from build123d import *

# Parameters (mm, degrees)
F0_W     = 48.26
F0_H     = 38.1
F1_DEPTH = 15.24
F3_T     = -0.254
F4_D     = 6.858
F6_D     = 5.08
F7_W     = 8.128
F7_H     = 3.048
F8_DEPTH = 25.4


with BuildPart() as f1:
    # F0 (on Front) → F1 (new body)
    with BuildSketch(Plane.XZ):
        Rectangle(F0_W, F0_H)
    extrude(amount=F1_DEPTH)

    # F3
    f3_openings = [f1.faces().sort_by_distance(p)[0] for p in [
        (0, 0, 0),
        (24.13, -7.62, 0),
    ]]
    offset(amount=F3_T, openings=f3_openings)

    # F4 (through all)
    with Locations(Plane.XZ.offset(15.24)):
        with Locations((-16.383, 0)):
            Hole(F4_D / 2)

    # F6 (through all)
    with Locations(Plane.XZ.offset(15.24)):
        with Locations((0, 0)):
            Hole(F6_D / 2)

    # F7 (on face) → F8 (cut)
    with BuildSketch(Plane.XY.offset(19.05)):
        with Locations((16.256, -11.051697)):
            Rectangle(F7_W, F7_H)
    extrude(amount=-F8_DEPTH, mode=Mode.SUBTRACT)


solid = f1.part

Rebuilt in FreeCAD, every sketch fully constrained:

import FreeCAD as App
import Part
import Sketcher

V = App.Vector
Q = App.Units.Quantity


def faces_at(feature, points):
    """Names of the faces that lie closest to the given points."""
    faces = feature.Shape.Faces
    near = lambda p: min(range(len(faces)), key=lambda i: faces[i].distToShape(Part.Vertex(*p))[0])
    return sorted({f"Face{near(p) + 1}" for p in points})

doc = App.newDocument("Part")
params = doc.addObject("Spreadsheet::Sheet", "Params")
for row, (alias, value) in enumerate([
    ("sketch1_width", "1.9 in"),
    ("sketch1_height", "1.5 in"),
    ("pad1_length", "0.6 in"),
    ("thickness_wall", "0.01 in"),
    ("sketch2_diameter", "0.27 in"),
    ("hole_diameter", "0.27 in"),
    ("sketch3_diameter", "0.2 in"),
    ("hole2_diameter", "0.2 in"),
    ("sketch4_width", "0.32 in"),
    ("sketch4_height", "0.12 in"),
    ("pocket1_length", "1 in"),
], start=1):
    params.set(f"A{row}", alias)
    params.set(f"B{row}", "=" + value)
    params.setAlias(f"B{row}", alias)

body = doc.addObject("PartDesign::Body", "Body")

# Sketch on XZ plane
sketch1 = doc.addObject("Sketcher::SketchObject", "Sketch")
body.addObject(sketch1)
sketch1.AttachmentSupport = (doc.XZ_Plane, [""])
sketch1.MapMode = "FlatFace"
sketch1.addGeometry([
    Part.LineSegment(V(-24.13, 19.05, 0), V(-24.13, -19.05, 0)),
    Part.LineSegment(V(-24.13, -19.05, 0), V(24.13, -19.05, 0)),
    Part.LineSegment(V(24.13, -19.05, 0), V(24.13, 19.05, 0)),
    Part.LineSegment(V(24.13, 19.05, 0), V(-24.13, 19.05, 0)),
], False)
sketch1.addConstraint([
    Sketcher.Constraint("Coincident", 0, 2, 1, 1),
    Sketcher.Constraint("Coincident", 1, 2, 2, 1),
    Sketcher.Constraint("Coincident", 2, 2, 3, 1),
    Sketcher.Constraint("Coincident", 3, 2, 0, 1),
    Sketcher.Constraint("Vertical", 0),
    Sketcher.Constraint("Horizontal", 1),
    Sketcher.Constraint("Vertical", 2),
    Sketcher.Constraint("Horizontal", 3),
    Sketcher.Constraint("Symmetric", 0, 2, 2, 2, -1, 1),
    Sketcher.Constraint("DistanceX", 1, 1, 1, 2, Q("1.9 in")),
    Sketcher.Constraint("DistanceY", 0, 2, 0, 1, Q("1.5 in")),
])
sketch1.setExpression("Constraints[9]", "Params.sketch1_width")
sketch1.setExpression("Constraints[10]", "Params.sketch1_height")
pad1 = doc.addObject("PartDesign::Pad", "Pad")
body.addObject(pad1)
pad1.Profile = sketch1
pad1.setExpression("Length", "Params.pad1_length")
doc.recompute()

thickness = doc.addObject("PartDesign::Thickness", "Thickness")
body.addObject(thickness)
thickness.Base = (pad1, faces_at(pad1, [(0, 0, 0), (24.13, -7.62, 0)]))
thickness.setExpression("Value", "Params.thickness_wall")
thickness.Reversed = True
thickness.Join = "Arc"

# Sketch on XZ plane
sketch2 = doc.addObject("Sketcher::SketchObject", "Sketch001")
body.addObject(sketch2)
sketch2.AttachmentSupport = (doc.XZ_Plane, [""])
sketch2.MapMode = "FlatFace"
sketch2.AttachmentOffset = App.Placement(V(0, 0, 0.6 * 25.4), App.Rotation())
sketch2.addGeometry(Part.Circle(V(-16.383, 0, 0), V(0, 0, 1), 3.429), False)
sketch2.addConstraint([
    Sketcher.Constraint("PointOnObject", 0, 3, -1),
    Sketcher.Constraint("Diameter", 0, Q("0.27 in")),
    Sketcher.Constraint("DistanceX", 0, 3, -1, 1, Q("0.645 in")),
])
sketch2.setExpression("Constraints[1]", "Params.sketch2_diameter")
doc.recompute()
hole = doc.addObject("PartDesign::Hole", "Hole")
body.addObject(hole)
hole.Profile = sketch2
hole.ThreadType = "None"
hole.setExpression("Diameter", "Params.hole_diameter")
hole.DepthType = "ThroughAll"

# Sketch on XZ plane
sketch3 = doc.addObject("Sketcher::SketchObject", "Sketch002")
body.addObject(sketch3)
sketch3.AttachmentSupport = (doc.XZ_Plane, [""])
sketch3.MapMode = "FlatFace"
sketch3.AttachmentOffset = App.Placement(V(0, 0, 0.6 * 25.4), App.Rotation())
sketch3.addGeometry(Part.Circle(V(0, 0, 0), V(0, 0, 1), 2.54), False)
sketch3.addConstraint([
    Sketcher.Constraint("Coincident", 0, 3, -1, 1),
    Sketcher.Constraint("Diameter", 0, Q("0.2 in")),
])
sketch3.setExpression("Constraints[1]", "Params.sketch3_diameter")
doc.recompute()
hole2 = doc.addObject("PartDesign::Hole", "Hole001")
body.addObject(hole2)
hole2.Profile = sketch3
hole2.ThreadType = "None"
hole2.setExpression("Diameter", "Params.hole2_diameter")
hole2.DepthType = "ThroughAll"

# Sketch on XY plane
sketch4 = doc.addObject("Sketcher::SketchObject", "Sketch003")
body.addObject(sketch4)
sketch4.AttachmentSupport = (doc.XY_Plane, [""])
sketch4.MapMode = "FlatFace"
sketch4.AttachmentOffset = App.Placement(V(0, 0, 0.75 * 25.4), App.Rotation())
sketch4.addGeometry([
    Part.LineSegment(V(12.192, -9.527697, 0), V(12.192, -12.575697, 0)),
    Part.LineSegment(V(12.192, -12.575697, 0), V(20.32, -12.575697, 0)),
    Part.LineSegment(V(20.32, -12.575697, 0), V(20.32, -9.527697, 0)),
    Part.LineSegment(V(20.32, -9.527697, 0), V(12.192, -9.527697, 0)),
], False)
sketch4.addConstraint([
    Sketcher.Constraint("Coincident", 0, 2, 1, 1),
    Sketcher.Constraint("Coincident", 1, 2, 2, 1),
    Sketcher.Constraint("Coincident", 2, 2, 3, 1),
    Sketcher.Constraint("Coincident", 3, 2, 0, 1),
    Sketcher.Constraint("Vertical", 0),
    Sketcher.Constraint("Horizontal", 1),
    Sketcher.Constraint("Vertical", 2),
    Sketcher.Constraint("Horizontal", 3),
    Sketcher.Constraint("DistanceX", 1, 1, 1, 2, Q("0.32 in")),
    Sketcher.Constraint("DistanceY", 0, 2, 0, 1, Q("0.12 in")),
    Sketcher.Constraint("DistanceX", -1, 1, 1, 2, Q("0.8 in")),
    Sketcher.Constraint("DistanceY", 0, 2, -1, 1, 12.575697),
])
sketch4.setExpression("Constraints[8]", "Params.sketch4_width")
sketch4.setExpression("Constraints[9]", "Params.sketch4_height")
pocket1 = doc.addObject("PartDesign::Pocket", "Pocket")
body.addObject(pocket1)
pocket1.Profile = sketch4
pocket1.setExpression("Length", "Params.pocket1_length")

doc.recompute()
